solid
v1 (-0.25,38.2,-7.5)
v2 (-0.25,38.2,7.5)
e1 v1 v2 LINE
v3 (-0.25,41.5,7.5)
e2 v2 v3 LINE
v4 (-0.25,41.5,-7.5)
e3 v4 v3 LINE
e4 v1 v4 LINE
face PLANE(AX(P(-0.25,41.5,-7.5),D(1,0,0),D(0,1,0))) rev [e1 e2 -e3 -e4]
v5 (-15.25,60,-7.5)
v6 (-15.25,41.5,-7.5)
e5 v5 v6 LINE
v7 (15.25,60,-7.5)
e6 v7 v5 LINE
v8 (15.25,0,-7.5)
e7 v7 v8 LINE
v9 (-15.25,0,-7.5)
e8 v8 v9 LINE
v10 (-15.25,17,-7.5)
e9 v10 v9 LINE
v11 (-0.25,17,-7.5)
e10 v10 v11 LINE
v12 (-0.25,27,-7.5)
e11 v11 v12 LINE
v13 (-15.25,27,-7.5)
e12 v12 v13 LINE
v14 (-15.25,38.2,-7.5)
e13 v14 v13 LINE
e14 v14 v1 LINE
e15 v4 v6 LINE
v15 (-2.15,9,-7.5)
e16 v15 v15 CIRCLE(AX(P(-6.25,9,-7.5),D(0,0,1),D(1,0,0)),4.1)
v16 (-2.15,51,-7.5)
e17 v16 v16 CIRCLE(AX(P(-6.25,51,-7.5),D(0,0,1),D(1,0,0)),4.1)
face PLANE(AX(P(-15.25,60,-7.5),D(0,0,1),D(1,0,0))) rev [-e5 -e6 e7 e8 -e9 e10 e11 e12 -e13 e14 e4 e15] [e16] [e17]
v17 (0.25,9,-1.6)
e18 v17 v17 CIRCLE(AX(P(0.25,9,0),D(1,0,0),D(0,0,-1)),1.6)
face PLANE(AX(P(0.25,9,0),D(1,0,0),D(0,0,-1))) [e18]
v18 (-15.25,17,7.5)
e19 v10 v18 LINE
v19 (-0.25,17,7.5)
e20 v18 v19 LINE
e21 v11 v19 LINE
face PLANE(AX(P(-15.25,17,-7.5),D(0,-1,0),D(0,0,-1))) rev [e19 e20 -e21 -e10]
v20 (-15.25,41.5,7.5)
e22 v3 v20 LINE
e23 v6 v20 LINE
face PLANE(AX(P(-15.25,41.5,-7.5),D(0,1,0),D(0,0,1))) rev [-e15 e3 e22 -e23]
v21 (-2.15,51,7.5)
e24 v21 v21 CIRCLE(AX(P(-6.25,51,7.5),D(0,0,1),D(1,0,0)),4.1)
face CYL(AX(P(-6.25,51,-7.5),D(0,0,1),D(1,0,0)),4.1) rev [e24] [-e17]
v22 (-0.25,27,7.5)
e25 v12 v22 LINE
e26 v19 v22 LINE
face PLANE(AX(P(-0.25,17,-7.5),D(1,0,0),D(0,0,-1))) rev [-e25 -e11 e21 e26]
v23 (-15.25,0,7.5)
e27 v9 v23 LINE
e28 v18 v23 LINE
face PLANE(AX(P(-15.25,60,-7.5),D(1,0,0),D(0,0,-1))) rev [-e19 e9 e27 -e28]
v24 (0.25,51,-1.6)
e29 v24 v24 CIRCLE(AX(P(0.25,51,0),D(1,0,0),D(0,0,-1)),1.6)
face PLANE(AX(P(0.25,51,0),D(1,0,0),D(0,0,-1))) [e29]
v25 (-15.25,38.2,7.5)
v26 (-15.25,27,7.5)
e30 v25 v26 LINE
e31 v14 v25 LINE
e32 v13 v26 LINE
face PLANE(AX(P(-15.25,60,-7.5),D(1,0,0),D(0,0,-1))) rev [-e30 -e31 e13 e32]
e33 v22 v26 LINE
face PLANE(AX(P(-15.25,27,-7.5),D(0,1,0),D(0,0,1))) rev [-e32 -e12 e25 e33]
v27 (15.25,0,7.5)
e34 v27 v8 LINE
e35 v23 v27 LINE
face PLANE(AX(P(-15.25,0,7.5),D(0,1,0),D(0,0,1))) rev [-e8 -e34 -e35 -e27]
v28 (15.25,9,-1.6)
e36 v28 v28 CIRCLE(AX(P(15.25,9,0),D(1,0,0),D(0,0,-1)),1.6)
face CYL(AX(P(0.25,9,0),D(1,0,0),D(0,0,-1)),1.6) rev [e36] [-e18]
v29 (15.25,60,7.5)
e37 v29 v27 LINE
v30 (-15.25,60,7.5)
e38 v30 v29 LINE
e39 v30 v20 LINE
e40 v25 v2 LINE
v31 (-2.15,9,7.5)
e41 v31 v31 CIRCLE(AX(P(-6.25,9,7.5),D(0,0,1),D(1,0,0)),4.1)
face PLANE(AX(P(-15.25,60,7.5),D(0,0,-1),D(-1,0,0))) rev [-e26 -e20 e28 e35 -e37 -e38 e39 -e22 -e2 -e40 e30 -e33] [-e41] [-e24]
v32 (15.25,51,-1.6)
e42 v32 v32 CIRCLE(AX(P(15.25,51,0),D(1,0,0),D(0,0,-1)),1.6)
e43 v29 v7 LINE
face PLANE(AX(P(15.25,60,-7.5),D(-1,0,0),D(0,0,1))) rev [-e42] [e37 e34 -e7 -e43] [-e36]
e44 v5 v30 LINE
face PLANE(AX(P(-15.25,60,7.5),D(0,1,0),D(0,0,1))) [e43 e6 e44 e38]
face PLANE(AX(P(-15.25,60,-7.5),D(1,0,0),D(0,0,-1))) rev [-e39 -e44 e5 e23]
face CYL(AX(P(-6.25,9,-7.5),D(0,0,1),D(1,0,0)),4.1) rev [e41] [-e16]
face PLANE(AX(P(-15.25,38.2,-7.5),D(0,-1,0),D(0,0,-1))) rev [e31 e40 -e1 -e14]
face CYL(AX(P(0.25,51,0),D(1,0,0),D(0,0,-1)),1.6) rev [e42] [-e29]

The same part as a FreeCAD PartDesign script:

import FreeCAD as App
import Part
import Sketcher
from FreeCAD import Vector


def add_polygon(sketch, points):
    """Adds a closed chain of lines whose ends are joined by coincident constraints."""
    first, n = sketch.GeometryCount, len(points)
    for a, b in zip(points, points[1:] + points[:1]):
        sketch.addGeometry(Part.LineSegment(App.Vector(*a, 0), App.Vector(*b, 0)), False)
    for i in range(n):
        sketch.addConstraint(Sketcher.Constraint("Coincident", first + i, 2, first + (i + 1) % n, 1))

doc = App.newDocument("Part")
body = doc.addObject("PartDesign::Body", "Body")

sketch1 = body.newObject("Sketcher::SketchObject", "Sketch")
sketch1.AttachmentSupport = (doc.getObject("XZ_Plane"), [""])
sketch1.MapMode = "FlatFace"
add_polygon(sketch1, [(-15.25, -7.5), (-15.25, 7.5), (15.25, 7.5), (15.25, -7.5)])
sketch1.addConstraint(Sketcher.Constraint("Vertical", 0))
sketch1.addConstraint(Sketcher.Constraint("Horizontal", 1))
sketch1.addConstraint(Sketcher.Constraint("Vertical", 2))
sketch1.addConstraint(Sketcher.Constraint("Horizontal", 3))
sketch1.addConstraint(Sketcher.Constraint("Symmetric", 0, 2, 2, 2, -1, 1))
sketch1.addConstraint(Sketcher.Constraint("DistanceY", 0, 1, 0, 2, 15.0))
sketch1.addConstraint(Sketcher.Constraint("DistanceX", 1, 1, 1, 2, 30.5))
pad1 = body.newObject("PartDesign::Pad", "Pad")
pad1.Profile = sketch1
pad1.Length = 60
pad1.Reversed = True

sketch2 = body.newObject("Sketcher::SketchObject", "Sketch001")
sketch2.AttachmentSupport = (doc.getObject("XY_Plane"), [""])
sketch2.MapMode = "FlatFace"
sketch2.AttachmentOffset = App.Placement(Vector(0, 0, 7.5), App.Rotation())
sketch2.addGeometry(Part.Circle(Vector(-6.25, 51, 0), Vector(0, 0, 1), 4.1), False)
sketch2.addGeometry(Part.Circle(Vector(-6.25, 9, 0), Vector(0, 0, 1), 4.1), False)
sketch2.addConstraint(Sketcher.Constraint("Equal", 0, 1))
sketch2.addConstraint(Sketcher.Constraint("Vertical", 0, 3, 1, 3))
sketch2.addConstraint(Sketcher.Constraint("Diameter", 0, 8.2))
sketch2.addConstraint(Sketcher.Constraint("DistanceY", -1, 1, 0, 3, 51.0))
sketch2.addConstraint(Sketcher.Constraint("DistanceY", -1, 1, 1, 3, 9.0))
sketch2.addConstraint(Sketcher.Constraint("DistanceX", 0, 3, -1, 1, 6.25))
pocket1 = body.newObject("PartDesign::Pocket", "Pocket")
pocket1.Profile = sketch2
pocket1.Type = "ThroughAll"

sketch3 = body.newObject("Sketcher::SketchObject", "Sketch002")
sketch3.AttachmentSupport = (doc.getObject("XY_Plane"), [""])
sketch3.MapMode = "FlatFace"
sketch3.AttachmentOffset = App.Placement(Vector(0, 0, 7.5), App.Rotation())
add_polygon(sketch3, [(-15.25, 41.5), (-15.25, 38.2), (-0.25, 38.2), (-0.25, 41.5)])
sketch3.addConstraint(Sketcher.Constraint("Vertical", 0))
sketch3.addConstraint(Sketcher.Constraint("Horizontal", 1))
sketch3.addConstraint(Sketcher.Constraint("Vertical", 2))
sketch3.addConstraint(Sketcher.Constraint("Horizontal", 3))
sketch3.addConstraint(Sketcher.Constraint("DistanceX", 1, 1, 1, 2, 15.0))
sketch3.addConstraint(Sketcher.Constraint("DistanceY", 0, 2, 0, 1, 3.3))
sketch3.addConstraint(Sketcher.Constraint("DistanceY", -1, 1, 0, 2, 38.2))
sketch3.addConstraint(Sketcher.Constraint("DistanceX", 0, 2, -1, 1, 15.25))
pocket2 = body.newObject("PartDesign::Pocket", "Pocket001")
pocket2.Profile = sketch3
pocket2.Type = "ThroughAll"

sketch4 = body.newObject("Sketcher::SketchObject", "Sketch003")
sketch4.AttachmentSupport = (doc.getObject("XY_Plane"), [""])
sketch4.MapMode = "FlatFace"
sketch4.AttachmentOffset = App.Placement(Vector(0, 0, 7.5), App.Rotation())
add_polygon(sketch4, [(-15.25, 27), (-15.25, 17), (-0.25, 17), (-0.25, 27)])
sketch4.addConstraint(Sketcher.Constraint("Vertical", 0))
sketch4.addConstraint(Sketcher.Constraint("Horizontal", 1))
sketch4.addConstraint(Sketcher.Constraint("Vertical", 2))
sketch4.addConstraint(Sketcher.Constraint("Horizontal", 3))
sketch4.addConstraint(Sketcher.Constraint("DistanceX", 1, 1, 1, 2, 15.0))
sketch4.addConstraint(Sketcher.Constraint("DistanceY", 0, 2, 0, 1, 10.0))
sketch4.addConstraint(Sketcher.Constraint("DistanceY", -1, 1, 0, 2, 17.0))
sketch4.addConstraint(Sketcher.Constraint("DistanceX", 0, 2, -1, 1, 15.25))
pocket3 = body.newObject("PartDesign::Pocket", "Pocket002")
pocket3.Profile = sketch4
pocket3.Type = "ThroughAll"

sketch5 = body.newObject("Sketcher::SketchObject", "Sketch004")
sketch5.AttachmentSupport = (doc.getObject("YZ_Plane"), [""])
sketch5.MapMode = "FlatFace"
sketch5.AttachmentOffset = App.Placement(Vector(0, 0, 15.25), App.Rotation())
sketch5.addGeometry(Part.Circle(Vector(51, 0, 0), Vector(0, 0, 1), 1.6), False)
sketch5.addGeometry(Part.Circle(Vector(9, 0, 0), Vector(0, 0, 1), 1.6), False)
sketch5.addConstraint(Sketcher.Constraint("Equal", 0, 1))
sketch5.addConstraint(Sketcher.Constraint("PointOnObject", 0, 3, -1))
sketch5.addConstraint(Sketcher.Constraint("PointOnObject", 1, 3, -1))
sketch5.addConstraint(Sketcher.Constraint("Diameter", 0, 3.2))
sketch5.addConstraint(Sketcher.Constraint("DistanceX", -1, 1, 0, 3, 51.0))
sketch5.addConstraint(Sketcher.Constraint("DistanceX", -1, 1, 1, 3, 9.0))
pocket4 = body.newObject("PartDesign::Pocket", "Pocket003")
pocket4.Profile = sketch5
pocket4.Length = 15

doc.recompute()
